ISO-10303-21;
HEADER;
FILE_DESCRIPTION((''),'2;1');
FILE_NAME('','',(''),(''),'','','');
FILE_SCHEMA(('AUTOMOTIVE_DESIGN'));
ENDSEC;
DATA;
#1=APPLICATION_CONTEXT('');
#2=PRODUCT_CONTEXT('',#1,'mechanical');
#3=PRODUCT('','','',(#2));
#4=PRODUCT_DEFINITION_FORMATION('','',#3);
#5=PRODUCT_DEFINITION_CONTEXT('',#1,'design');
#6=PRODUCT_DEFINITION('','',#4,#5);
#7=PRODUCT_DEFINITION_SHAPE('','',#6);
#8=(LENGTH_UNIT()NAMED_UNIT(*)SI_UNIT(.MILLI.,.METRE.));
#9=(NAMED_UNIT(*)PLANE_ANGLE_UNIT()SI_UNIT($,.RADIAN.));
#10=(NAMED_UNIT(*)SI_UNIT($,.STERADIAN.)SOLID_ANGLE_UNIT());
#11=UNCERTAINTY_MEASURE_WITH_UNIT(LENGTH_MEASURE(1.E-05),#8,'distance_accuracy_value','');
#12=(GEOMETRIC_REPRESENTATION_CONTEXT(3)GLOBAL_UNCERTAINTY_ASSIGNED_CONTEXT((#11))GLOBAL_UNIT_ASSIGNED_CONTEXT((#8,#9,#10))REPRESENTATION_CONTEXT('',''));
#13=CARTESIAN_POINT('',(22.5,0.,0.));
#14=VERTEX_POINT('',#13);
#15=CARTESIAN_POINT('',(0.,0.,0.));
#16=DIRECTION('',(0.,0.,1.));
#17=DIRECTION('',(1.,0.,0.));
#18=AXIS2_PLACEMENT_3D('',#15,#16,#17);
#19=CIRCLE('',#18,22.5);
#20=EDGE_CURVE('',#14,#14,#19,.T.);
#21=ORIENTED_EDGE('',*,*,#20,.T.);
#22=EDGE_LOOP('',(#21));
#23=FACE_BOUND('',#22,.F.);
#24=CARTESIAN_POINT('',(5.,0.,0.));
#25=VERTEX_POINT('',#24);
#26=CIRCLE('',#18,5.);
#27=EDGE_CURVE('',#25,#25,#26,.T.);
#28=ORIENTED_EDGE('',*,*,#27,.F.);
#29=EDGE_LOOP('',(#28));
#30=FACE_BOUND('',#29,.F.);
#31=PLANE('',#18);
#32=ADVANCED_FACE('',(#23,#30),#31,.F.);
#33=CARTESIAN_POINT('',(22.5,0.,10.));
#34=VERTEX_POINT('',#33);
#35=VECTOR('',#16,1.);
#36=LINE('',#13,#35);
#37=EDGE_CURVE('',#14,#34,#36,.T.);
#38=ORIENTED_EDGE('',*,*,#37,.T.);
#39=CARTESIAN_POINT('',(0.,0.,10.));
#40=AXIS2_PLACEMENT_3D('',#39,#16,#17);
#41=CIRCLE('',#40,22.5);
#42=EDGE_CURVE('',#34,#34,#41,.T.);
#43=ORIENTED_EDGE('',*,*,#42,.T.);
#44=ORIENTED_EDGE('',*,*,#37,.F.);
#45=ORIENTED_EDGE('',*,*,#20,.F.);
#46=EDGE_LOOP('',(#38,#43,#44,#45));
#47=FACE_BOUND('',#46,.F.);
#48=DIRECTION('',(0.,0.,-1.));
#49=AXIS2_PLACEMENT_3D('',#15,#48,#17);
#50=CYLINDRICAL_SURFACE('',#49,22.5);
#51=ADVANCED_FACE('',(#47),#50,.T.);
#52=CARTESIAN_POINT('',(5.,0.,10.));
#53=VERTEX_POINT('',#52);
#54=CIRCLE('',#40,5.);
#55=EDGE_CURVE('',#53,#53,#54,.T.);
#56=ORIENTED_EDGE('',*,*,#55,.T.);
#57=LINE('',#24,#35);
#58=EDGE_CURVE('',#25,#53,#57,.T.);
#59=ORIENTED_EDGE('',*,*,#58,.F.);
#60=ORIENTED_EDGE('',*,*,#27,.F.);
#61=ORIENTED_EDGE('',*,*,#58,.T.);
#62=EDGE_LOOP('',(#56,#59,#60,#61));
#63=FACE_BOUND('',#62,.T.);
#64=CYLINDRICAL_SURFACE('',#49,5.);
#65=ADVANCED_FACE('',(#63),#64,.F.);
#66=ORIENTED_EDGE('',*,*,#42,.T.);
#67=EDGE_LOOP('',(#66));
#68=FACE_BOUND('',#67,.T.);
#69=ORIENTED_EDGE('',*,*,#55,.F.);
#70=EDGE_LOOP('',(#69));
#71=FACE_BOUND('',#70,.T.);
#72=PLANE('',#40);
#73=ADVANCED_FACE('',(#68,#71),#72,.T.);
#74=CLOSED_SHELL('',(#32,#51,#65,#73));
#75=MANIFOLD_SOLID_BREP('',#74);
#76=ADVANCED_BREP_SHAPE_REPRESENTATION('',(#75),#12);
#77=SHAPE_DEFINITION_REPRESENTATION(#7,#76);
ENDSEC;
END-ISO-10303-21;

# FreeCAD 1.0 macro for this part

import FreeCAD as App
import Part
import Sketcher
from FreeCAD import Vector

doc = App.newDocument("Part")
body = doc.addObject("PartDesign::Body", "Body")

# Sketch on XY plane
sketch1 = body.newObject("Sketcher::SketchObject", "Sketch")
sketch1.AttachmentSupport = (doc.getObject("XY_Plane"), [""])
sketch1.MapMode = "FlatFace"
sketch1.addGeometry(Part.Circle(Vector(0, 0, 0), Vector(0, 0, 1), 22), False)
sketch1.addGeometry(Part.Circle(Vector(0, 0, 0), Vector(0, 0, 1), 5), False)
sketch1.addConstraint(Sketcher.Constraint("Coincident", 0, 3, -1, 1))
sketch1.addConstraint(Sketcher.Constraint("Coincident", 1, 3, -1, 1))
sketch1.addConstraint(Sketcher.Constraint("Diameter", 0, 45.0))
sketch1.addConstraint(Sketcher.Constraint("Diameter", 1, 10.0))
pad1 = body.newObject("PartDesign::Pad", "Pad")
pad1.Profile = sketch1
pad1.Length = 10

doc.recompute()
